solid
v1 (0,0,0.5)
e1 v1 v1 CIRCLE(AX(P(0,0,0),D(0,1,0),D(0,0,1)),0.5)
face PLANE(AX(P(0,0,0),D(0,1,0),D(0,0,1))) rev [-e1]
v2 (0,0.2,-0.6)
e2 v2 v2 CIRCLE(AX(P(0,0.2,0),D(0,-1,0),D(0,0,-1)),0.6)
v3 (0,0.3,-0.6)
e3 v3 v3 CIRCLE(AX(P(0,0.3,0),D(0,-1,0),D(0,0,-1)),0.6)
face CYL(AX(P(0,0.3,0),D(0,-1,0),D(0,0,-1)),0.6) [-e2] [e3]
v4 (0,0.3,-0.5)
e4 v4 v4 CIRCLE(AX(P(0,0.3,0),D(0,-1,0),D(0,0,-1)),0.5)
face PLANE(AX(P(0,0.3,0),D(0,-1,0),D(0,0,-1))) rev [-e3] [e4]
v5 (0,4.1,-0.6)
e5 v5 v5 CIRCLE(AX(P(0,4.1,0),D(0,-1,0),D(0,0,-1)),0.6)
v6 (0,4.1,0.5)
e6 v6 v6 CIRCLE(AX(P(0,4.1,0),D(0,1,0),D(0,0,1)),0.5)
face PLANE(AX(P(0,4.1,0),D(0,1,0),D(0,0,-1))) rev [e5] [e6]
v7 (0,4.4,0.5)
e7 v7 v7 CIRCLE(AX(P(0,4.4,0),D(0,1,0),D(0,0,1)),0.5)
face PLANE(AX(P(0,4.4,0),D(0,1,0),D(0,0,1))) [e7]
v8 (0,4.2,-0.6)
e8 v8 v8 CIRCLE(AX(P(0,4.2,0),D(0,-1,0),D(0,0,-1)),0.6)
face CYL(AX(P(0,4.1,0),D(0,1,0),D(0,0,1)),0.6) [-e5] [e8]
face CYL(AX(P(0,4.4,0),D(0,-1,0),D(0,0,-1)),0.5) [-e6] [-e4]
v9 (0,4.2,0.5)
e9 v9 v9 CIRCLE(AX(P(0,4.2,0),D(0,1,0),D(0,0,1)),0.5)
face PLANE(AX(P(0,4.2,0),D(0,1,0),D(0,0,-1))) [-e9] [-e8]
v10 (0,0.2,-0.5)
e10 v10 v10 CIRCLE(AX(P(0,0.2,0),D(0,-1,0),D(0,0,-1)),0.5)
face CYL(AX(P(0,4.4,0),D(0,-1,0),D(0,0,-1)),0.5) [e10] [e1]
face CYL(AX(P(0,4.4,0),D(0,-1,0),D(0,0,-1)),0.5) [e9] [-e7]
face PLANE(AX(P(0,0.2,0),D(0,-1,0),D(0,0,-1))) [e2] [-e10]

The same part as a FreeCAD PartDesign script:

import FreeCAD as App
import Part
import Sketcher

V = App.Vector
Q = App.Units.Quantity

doc = App.newDocument("Part")
params = doc.addObject("Spreadsheet::Sheet", "Params")
for row, (alias, value) in enumerate([
    ("sketch1_diameter", "1 mm"),
    ("pad1_length", "4.4 mm"),
    ("sketch2_diameter", "1.2 mm"),
    ("pad2_length", "0.1 mm"),
], start=1):
    params.set(f"A{row}", alias)
    params.set(f"B{row}", "=" + value)
    params.setAlias(f"B{row}", alias)

body = doc.addObject("PartDesign::Body", "Body")

# Sketch on XZ plane
sketch1 = body.newObject("Sketcher::SketchObject", "Sketch")
sketch1.AttachmentSupport = (doc.getObject("XZ_Plane"), [""])
sketch1.MapMode = "FlatFace"
sketch1.addGeometry(Part.Circle(V(0, 0, 0), V(0, 0, 1), 0.5), False)
sketch1.addConstraint([
    Sketcher.Constraint("Coincident", 0, 3, -1, 1),
    Sketcher.Constraint("Diameter", 0, Q("1 mm")),
])
sketch1.setExpression("Constraints[1]", "Params.sketch1_diameter")
pad1 = body.newObject("PartDesign::Pad", "Pad")
pad1.Profile = sketch1
pad1.setExpression("Length", "Params.pad1_length")
pad1.Reversed = True

# Sketch on XZ plane
sketch2 = body.newObject("Sketcher::SketchObject", "Sketch001")
sketch2.AttachmentSupport = (doc.getObject("XZ_Plane"), [""])
sketch2.MapMode = "FlatFace"
sketch2.AttachmentOffset = App.Placement(V(0, 0, -0.2), App.Rotation())
sketch2.addGeometry(Part.Circle(V(0, 0, 0), V(0, 0, 1), 0.6), False)
sketch2.addConstraint([
    Sketcher.Constraint("Coincident", 0, 3, -1, 1),
    Sketcher.Constraint("Diameter", 0, Q("1.2 mm")),
])
sketch2.setExpression("Constraints[1]", "Params.sketch2_diameter")
pad2 = body.newObject("PartDesign::Pad", "Pad001")
pad2.Profile = sketch2
pad2.setExpression("Length", "Params.pad2_length")
pad2.Reversed = True
doc.recompute()

datumplane = body.newObject("PartDesign::Plane", "DatumPlane")
datumplane.AttachmentSupport = (doc.getObject("XZ_Plane"), [""])
datumplane.MapMode = "FlatFace"
datumplane.AttachmentOffset = App.Placement(V(0, 0, -2.2), App.Rotation())
mirrored = body.newObject("PartDesign::Mirrored", "Mirrored")
mirrored.Originals = [pad2]
mirrored.MirrorPlane = (datumplane, [""])
body.Tip = mirrored

doc.recompute()
